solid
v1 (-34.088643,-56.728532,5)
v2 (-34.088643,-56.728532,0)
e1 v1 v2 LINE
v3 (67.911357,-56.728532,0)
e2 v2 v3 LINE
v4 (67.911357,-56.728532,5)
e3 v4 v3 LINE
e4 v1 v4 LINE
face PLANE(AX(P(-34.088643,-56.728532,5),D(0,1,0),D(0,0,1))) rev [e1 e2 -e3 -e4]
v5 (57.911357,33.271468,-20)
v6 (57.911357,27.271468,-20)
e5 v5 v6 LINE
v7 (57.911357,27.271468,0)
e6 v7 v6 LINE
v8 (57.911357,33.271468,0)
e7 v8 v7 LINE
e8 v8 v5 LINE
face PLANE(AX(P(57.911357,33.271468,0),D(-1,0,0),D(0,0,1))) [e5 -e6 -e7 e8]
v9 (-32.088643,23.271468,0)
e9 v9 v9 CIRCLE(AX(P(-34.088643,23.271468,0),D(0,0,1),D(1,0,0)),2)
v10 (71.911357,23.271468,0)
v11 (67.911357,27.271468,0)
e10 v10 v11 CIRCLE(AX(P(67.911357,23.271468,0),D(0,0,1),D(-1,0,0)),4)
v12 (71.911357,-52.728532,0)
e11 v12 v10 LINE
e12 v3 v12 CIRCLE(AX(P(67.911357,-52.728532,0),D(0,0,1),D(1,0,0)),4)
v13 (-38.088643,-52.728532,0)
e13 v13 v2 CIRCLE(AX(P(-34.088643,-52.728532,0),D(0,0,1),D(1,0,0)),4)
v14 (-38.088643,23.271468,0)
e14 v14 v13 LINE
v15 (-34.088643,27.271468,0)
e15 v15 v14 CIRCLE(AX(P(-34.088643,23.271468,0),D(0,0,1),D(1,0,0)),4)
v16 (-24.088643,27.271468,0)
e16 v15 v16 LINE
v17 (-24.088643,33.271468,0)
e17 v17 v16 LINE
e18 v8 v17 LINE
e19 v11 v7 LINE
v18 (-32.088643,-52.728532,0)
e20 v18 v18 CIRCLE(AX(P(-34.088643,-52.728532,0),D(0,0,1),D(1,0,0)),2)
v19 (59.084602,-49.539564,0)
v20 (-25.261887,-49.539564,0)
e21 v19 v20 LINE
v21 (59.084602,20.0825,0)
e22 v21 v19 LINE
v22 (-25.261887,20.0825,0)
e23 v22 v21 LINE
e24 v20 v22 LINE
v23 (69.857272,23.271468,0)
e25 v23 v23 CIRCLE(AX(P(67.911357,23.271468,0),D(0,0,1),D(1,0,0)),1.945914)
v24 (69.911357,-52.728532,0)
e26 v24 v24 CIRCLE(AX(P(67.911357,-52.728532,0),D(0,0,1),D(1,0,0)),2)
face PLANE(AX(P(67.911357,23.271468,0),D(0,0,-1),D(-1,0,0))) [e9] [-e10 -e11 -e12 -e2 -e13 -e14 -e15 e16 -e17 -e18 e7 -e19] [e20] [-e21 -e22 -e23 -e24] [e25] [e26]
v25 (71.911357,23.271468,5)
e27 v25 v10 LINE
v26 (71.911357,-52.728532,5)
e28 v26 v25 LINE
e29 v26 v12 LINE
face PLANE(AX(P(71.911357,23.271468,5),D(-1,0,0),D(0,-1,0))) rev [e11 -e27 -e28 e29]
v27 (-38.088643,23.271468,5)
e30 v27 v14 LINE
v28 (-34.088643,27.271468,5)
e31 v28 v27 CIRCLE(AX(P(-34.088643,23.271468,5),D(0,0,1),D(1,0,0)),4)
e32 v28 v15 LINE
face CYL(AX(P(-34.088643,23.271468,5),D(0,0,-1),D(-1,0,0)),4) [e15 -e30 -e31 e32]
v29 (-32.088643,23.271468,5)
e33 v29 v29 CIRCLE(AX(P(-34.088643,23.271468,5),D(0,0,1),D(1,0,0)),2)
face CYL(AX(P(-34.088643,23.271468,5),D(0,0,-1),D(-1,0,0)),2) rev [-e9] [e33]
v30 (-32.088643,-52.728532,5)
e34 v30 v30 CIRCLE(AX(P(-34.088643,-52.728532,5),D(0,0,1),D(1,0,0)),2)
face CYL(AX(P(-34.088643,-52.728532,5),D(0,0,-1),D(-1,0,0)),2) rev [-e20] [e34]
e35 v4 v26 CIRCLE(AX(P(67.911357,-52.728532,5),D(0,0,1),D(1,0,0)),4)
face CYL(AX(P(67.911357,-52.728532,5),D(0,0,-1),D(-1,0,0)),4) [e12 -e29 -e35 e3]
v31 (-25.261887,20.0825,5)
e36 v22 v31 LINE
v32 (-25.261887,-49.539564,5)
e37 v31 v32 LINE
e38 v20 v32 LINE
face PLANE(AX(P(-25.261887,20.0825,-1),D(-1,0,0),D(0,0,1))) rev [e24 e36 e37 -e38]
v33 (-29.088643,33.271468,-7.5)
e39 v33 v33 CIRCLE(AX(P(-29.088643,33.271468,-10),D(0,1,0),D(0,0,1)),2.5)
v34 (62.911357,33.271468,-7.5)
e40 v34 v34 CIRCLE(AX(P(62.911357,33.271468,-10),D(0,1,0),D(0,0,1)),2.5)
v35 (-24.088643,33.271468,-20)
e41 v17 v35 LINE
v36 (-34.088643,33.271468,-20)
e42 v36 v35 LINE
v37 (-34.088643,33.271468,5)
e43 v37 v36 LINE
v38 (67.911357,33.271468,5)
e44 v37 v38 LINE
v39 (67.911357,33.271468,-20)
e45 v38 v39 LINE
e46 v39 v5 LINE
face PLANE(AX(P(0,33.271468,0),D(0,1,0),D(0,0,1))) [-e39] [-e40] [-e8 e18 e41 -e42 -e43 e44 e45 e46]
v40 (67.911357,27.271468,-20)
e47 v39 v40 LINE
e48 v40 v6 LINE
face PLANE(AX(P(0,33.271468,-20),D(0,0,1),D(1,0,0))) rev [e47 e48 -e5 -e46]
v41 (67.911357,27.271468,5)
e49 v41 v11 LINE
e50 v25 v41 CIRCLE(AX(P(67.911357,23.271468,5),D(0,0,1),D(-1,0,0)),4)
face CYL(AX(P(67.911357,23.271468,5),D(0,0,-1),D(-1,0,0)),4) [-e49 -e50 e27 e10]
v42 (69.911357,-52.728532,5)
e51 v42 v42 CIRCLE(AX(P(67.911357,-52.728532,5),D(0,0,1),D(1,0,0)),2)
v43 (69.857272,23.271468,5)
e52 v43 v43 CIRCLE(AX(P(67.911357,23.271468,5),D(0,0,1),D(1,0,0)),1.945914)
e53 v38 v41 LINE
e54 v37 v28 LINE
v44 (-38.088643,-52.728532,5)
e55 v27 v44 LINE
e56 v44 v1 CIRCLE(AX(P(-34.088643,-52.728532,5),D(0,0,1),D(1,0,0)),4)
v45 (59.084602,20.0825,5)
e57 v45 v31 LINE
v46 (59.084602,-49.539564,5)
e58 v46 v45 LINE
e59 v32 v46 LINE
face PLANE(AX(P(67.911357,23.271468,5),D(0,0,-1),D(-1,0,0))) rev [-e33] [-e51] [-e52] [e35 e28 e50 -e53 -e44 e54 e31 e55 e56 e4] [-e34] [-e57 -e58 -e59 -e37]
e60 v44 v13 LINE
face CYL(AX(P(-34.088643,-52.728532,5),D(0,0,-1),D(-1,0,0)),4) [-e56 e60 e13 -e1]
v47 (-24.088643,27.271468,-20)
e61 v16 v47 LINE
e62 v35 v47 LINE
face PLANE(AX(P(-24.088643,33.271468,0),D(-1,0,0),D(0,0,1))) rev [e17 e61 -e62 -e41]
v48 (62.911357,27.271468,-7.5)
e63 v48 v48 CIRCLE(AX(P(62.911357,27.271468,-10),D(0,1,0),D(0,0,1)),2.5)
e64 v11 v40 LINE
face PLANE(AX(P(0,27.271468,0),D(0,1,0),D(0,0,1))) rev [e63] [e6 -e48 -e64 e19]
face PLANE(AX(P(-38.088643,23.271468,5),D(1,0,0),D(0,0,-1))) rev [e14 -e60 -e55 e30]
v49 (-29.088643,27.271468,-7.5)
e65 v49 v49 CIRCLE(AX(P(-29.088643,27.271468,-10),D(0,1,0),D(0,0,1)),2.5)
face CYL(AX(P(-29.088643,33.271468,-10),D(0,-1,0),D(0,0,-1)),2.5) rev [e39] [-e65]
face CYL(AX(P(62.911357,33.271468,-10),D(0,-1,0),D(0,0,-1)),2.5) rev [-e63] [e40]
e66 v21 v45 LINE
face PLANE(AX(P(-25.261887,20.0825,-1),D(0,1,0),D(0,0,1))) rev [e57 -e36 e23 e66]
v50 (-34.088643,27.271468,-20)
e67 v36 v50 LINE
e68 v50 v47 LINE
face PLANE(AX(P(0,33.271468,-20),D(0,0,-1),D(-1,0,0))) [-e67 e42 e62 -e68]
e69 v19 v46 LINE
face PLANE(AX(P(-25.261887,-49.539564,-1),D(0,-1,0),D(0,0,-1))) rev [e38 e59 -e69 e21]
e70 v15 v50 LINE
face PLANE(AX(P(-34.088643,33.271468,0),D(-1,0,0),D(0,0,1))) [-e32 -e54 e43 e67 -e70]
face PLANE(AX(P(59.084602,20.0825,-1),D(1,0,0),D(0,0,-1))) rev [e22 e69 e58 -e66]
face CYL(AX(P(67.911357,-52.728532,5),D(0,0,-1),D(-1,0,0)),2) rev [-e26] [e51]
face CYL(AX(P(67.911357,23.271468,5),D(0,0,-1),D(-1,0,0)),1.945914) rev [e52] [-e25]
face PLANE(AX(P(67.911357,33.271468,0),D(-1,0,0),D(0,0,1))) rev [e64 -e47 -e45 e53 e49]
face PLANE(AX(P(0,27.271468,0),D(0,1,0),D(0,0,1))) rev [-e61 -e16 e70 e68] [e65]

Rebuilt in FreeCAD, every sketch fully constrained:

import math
import FreeCAD as App
import Part
import Sketcher
Q = App.Units.Quantity


def add_polygon(sketch, points):
    """Adds a closed chain of lines whose ends are joined by coincident constraints."""
    first, n = sketch.GeometryCount, len(points)
    for a, b in zip(points, points[1:] + points[:1]):
        sketch.addGeometry(Part.LineSegment(App.Vector(*a, 0), App.Vector(*b, 0)), False)
    for i in range(n):
        sketch.addConstraint(Sketcher.Constraint("Coincident", first + i, 2, first + (i + 1) % n, 1))

doc = App.newDocument("Part")
body = doc.addObject("PartDesign::Body", "Body")

# Sketch on XY plane
sketch1 = body.newObject("Sketcher::SketchObject", "Sketch")
sketch1.AttachmentSupport = (doc.getObject("XY_Plane"), [""])
sketch1.MapMode = "FlatFace"
sketch1.addGeometry(Part.LineSegment(App.Vector(67.9, 27.3, 0), App.Vector(-34.1, 27.3, 0)), False)
sketch1.addGeometry(Part.ArcOfCircle(Part.Circle(App.Vector(-34.1, 23.3, 0), App.Vector(0, 0, 1), 4), math.radians(90), math.radians(180)), False)
sketch1.addGeometry(Part.LineSegment(App.Vector(-38.1, 23.3, 0), App.Vector(-38.1, -52.7, 0)), False)
sketch1.addGeometry(Part.ArcOfCircle(Part.Circle(App.Vector(-34.1, -52.7, 0), App.Vector(0, 0, 1), 4), math.radians(180), math.radians(270)), False)
sketch1.addGeometry(Part.LineSegment(App.Vector(-34.1, -56.7, 0), App.Vector(67.9, -56.7, 0)), False)
sketch1.addGeometry(Part.ArcOfCircle(Part.Circle(App.Vector(67.9, -52.7, 0), App.Vector(0, 0, 1), 4), math.radians(-90), math.radians(0)), False)
sketch1.addGeometry(Part.LineSegment(App.Vector(71.9, -52.7, 0), App.Vector(71.9, 23.3, 0)), False)
sketch1.addGeometry(Part.ArcOfCircle(Part.Circle(App.Vector(67.9, 23.3, 0), App.Vector(0, 0, 1), 4), math.radians(0), math.radians(90)), False)
sketch1.addGeometry(Part.Circle(App.Vector(67.9, -52.7, 0), App.Vector(0, 0, 1), 2), False)
sketch1.addGeometry(Part.Circle(App.Vector(-34.1, -52.7, 0), App.Vector(0, 0, 1), 2), False)
sketch1.addGeometry(Part.Circle(App.Vector(67.9, 23.3, 0), App.Vector(0, 0, 1), 1.9), False)
sketch1.addGeometry(Part.Circle(App.Vector(-34.1, 23.3, 0), App.Vector(0, 0, 1), 2), False)
sketch1.addConstraint(Sketcher.Constraint("Tangent", 0, 2, 1, 1))
sketch1.addConstraint(Sketcher.Constraint("Tangent", 1, 2, 2, 1))
sketch1.addConstraint(Sketcher.Constraint("Tangent", 2, 2, 3, 1))
sketch1.addConstraint(Sketcher.Constraint("Tangent", 3, 2, 4, 1))
sketch1.addConstraint(Sketcher.Constraint("Tangent", 4, 2, 5, 1))
sketch1.addConstraint(Sketcher.Constraint("Tangent", 5, 2, 6, 1))
sketch1.addConstraint(Sketcher.Constraint("Tangent", 6, 2, 7, 1))
sketch1.addConstraint(Sketcher.Constraint("Tangent", 7, 2, 0, 1))
sketch1.addConstraint(Sketcher.Constraint("Horizontal", 0))
sketch1.addConstraint(Sketcher.Constraint("Vertical", 2))
sketch1.addConstraint(Sketcher.Constraint("Horizontal", 4))
sketch1.addConstraint(Sketcher.Constraint("Vertical", 6))
sketch1.addConstraint(Sketcher.Constraint("Coincident", 8, 3, 5, 3))
sketch1.addConstraint(Sketcher.Constraint("Coincident", 9, 3, 3, 3))
sketch1.addConstraint(Sketcher.Constraint("Coincident", 10, 3, 7, 3))
sketch1.addConstraint(Sketcher.Constraint("Coincident", 11, 3, 1, 3))
sketch1.addConstraint(Sketcher.Constraint("Equal", 1, 3))
sketch1.addConstraint(Sketcher.Constraint("Equal", 3, 5))
sketch1.addConstraint(Sketcher.Constraint("Equal", 5, 7))
sketch1.addConstraint(Sketcher.Constraint("Equal", 8, 9))
sketch1.addConstraint(Sketcher.Constraint("Equal", 9, 11))
sketch1.addConstraint(Sketcher.Constraint("Diameter", 8, Q("4 mm")))
sketch1.addConstraint(Sketcher.Constraint("Radius", 1, Q("4 mm")))
sketch1.addConstraint(Sketcher.Constraint("DistanceX", 0, 2, 0, 1, Q("102 mm")))
sketch1.addConstraint(Sketcher.Constraint("DistanceY", 2, 2, 2, 1, Q("76 mm")))
sketch1.addConstraint(Sketcher.Constraint("Diameter", 10, Q("3.891828 mm")))
sketch1.addConstraint(Sketcher.Constraint("DistanceY", -1, 1, 1, 3, Q("23.271468 mm")))
sketch1.addConstraint(Sketcher.Constraint("DistanceX", 1, 3, -1, 1, Q("34.088643 mm")))
pad1 = body.newObject("PartDesign::Pad", "Pad")
pad1.Profile = sketch1
pad1.Length = 5

# Sketch on XZ plane
sketch2 = body.newObject("Sketcher::SketchObject", "Sketch001")
sketch2.AttachmentSupport = (doc.getObject("XZ_Plane"), [""])
sketch2.MapMode = "FlatFace"
sketch2.AttachmentOffset = App.Placement(App.Vector(0, 0, -27.271468), App.Rotation())
add_polygon(sketch2, [(-34.1, -20), (-34.1, 5), (67.9, 5), (67.9, -20), (57.9, -20), (57.9, 0), (-24.1, 0), (-24.1, -20)])  # lines 0-7
sketch2.addGeometry(Part.Circle(App.Vector(-29.1, -10, 0), App.Vector(0, 0, 1), 2.5), False)  # 8
sketch2.addGeometry(Part.Circle(App.Vector(62.9, -10, 0), App.Vector(0, 0, 1), 2.5), False)  # 9
sketch2.addConstraint(Sketcher.Constraint("Vertical", 0))
sketch2.addConstraint(Sketcher.Constraint("Horizontal", 1))
sketch2.addConstraint(Sketcher.Constraint("Vertical", 2))
sketch2.addConstraint(Sketcher.Constraint("Horizontal", 3))
sketch2.addConstraint(Sketcher.Constraint("Vertical", 4))
sketch2.addConstraint(Sketcher.Constraint("Horizontal", 5))
sketch2.addConstraint(Sketcher.Constraint("Vertical", 6))
sketch2.addConstraint(Sketcher.Constraint("Horizontal", 7))
sketch2.addConstraint(Sketcher.Constraint("Equal", 8, 9))
sketch2.addConstraint(Sketcher.Constraint("PointOnObject", 4, 2, -1))
sketch2.addConstraint(Sketcher.Constraint("Horizontal", 8, 3, 9, 3))
sketch2.addConstraint(Sketcher.Constraint("Horizontal", 3, 2, 6, 2))
sketch2.addConstraint(Sketcher.Constraint("Equal", 3, 7))
sketch2.addConstraint(Sketcher.Constraint("Diameter", 8, Q("5 mm")))
sketch2.addConstraint(Sketcher.Constraint("DistanceX", 1, 1, 1, 2, Q("102 mm")))
sketch2.addConstraint(Sketcher.Constraint("DistanceX", 3, 2, 3, 1, Q("10 mm")))
sketch2.addConstraint(Sketcher.Constraint("DistanceY", 0, 1, 0, 2, Q("25 mm")))
sketch2.addConstraint(Sketcher.Constraint("DistanceY", 4, 1, 4, 2, Q("20 mm")))
sketch2.addConstraint(Sketcher.Constraint("DistanceY", 8, 3, -1, 1, Q("10 mm")))
sketch2.addConstraint(Sketcher.Constraint("DistanceX", 8, 3, 9, 3, Q("92 mm")))
sketch2.addConstraint(Sketcher.Constraint("DistanceX", 0, 2, 8, 3, Q("5 mm")))
sketch2.addConstraint(Sketcher.Constraint("DistanceX", 8, 3, -1, 1, Q("29.088643 mm")))
pad2 = body.newObject("PartDesign::Pad", "Pad001")
pad2.Profile = sketch2
pad2.Length = 6
pad2.Reversed = True

# Sketch on XY plane
sketch3 = body.newObject("Sketcher::SketchObject", "Sketch002")
sketch3.AttachmentSupport = (doc.getObject("XY_Plane"), [""])
sketch3.MapMode = "FlatFace"
sketch3.AttachmentOffset = App.Placement(App.Vector(0, 0, 5), App.Rotation())
add_polygon(sketch3, [(-25, 20), (-25, -50), (59, -50), (59, 20)])  # lines 0-3
sketch3.addConstraint(Sketcher.Constraint("Vertical", 0))
sketch3.addConstraint(Sketcher.Constraint("Horizontal", 1))
sketch3.addConstraint(Sketcher.Constraint("Vertical", 2))
sketch3.addConstraint(Sketcher.Constraint("Horizontal", 3))
sketch3.addConstraint(Sketcher.Constraint("DistanceX", 1, 1, 1, 2, Q("84.34649 mm")))
sketch3.addConstraint(Sketcher.Constraint("DistanceY", -1, 1, 2, 2, Q("20.0825 mm")))
sketch3.addConstraint(Sketcher.Constraint("DistanceY", 0, 2, 0, 1, Q("69.622064 mm")))
sketch3.addConstraint(Sketcher.Constraint("DistanceX", 0, 2, -1, 1, Q("25.261887 mm")))
pocket1 = body.newObject("PartDesign::Pocket", "Pocket")
pocket1.Profile = sketch3
pocket1.Length = 6

doc.recompute()
